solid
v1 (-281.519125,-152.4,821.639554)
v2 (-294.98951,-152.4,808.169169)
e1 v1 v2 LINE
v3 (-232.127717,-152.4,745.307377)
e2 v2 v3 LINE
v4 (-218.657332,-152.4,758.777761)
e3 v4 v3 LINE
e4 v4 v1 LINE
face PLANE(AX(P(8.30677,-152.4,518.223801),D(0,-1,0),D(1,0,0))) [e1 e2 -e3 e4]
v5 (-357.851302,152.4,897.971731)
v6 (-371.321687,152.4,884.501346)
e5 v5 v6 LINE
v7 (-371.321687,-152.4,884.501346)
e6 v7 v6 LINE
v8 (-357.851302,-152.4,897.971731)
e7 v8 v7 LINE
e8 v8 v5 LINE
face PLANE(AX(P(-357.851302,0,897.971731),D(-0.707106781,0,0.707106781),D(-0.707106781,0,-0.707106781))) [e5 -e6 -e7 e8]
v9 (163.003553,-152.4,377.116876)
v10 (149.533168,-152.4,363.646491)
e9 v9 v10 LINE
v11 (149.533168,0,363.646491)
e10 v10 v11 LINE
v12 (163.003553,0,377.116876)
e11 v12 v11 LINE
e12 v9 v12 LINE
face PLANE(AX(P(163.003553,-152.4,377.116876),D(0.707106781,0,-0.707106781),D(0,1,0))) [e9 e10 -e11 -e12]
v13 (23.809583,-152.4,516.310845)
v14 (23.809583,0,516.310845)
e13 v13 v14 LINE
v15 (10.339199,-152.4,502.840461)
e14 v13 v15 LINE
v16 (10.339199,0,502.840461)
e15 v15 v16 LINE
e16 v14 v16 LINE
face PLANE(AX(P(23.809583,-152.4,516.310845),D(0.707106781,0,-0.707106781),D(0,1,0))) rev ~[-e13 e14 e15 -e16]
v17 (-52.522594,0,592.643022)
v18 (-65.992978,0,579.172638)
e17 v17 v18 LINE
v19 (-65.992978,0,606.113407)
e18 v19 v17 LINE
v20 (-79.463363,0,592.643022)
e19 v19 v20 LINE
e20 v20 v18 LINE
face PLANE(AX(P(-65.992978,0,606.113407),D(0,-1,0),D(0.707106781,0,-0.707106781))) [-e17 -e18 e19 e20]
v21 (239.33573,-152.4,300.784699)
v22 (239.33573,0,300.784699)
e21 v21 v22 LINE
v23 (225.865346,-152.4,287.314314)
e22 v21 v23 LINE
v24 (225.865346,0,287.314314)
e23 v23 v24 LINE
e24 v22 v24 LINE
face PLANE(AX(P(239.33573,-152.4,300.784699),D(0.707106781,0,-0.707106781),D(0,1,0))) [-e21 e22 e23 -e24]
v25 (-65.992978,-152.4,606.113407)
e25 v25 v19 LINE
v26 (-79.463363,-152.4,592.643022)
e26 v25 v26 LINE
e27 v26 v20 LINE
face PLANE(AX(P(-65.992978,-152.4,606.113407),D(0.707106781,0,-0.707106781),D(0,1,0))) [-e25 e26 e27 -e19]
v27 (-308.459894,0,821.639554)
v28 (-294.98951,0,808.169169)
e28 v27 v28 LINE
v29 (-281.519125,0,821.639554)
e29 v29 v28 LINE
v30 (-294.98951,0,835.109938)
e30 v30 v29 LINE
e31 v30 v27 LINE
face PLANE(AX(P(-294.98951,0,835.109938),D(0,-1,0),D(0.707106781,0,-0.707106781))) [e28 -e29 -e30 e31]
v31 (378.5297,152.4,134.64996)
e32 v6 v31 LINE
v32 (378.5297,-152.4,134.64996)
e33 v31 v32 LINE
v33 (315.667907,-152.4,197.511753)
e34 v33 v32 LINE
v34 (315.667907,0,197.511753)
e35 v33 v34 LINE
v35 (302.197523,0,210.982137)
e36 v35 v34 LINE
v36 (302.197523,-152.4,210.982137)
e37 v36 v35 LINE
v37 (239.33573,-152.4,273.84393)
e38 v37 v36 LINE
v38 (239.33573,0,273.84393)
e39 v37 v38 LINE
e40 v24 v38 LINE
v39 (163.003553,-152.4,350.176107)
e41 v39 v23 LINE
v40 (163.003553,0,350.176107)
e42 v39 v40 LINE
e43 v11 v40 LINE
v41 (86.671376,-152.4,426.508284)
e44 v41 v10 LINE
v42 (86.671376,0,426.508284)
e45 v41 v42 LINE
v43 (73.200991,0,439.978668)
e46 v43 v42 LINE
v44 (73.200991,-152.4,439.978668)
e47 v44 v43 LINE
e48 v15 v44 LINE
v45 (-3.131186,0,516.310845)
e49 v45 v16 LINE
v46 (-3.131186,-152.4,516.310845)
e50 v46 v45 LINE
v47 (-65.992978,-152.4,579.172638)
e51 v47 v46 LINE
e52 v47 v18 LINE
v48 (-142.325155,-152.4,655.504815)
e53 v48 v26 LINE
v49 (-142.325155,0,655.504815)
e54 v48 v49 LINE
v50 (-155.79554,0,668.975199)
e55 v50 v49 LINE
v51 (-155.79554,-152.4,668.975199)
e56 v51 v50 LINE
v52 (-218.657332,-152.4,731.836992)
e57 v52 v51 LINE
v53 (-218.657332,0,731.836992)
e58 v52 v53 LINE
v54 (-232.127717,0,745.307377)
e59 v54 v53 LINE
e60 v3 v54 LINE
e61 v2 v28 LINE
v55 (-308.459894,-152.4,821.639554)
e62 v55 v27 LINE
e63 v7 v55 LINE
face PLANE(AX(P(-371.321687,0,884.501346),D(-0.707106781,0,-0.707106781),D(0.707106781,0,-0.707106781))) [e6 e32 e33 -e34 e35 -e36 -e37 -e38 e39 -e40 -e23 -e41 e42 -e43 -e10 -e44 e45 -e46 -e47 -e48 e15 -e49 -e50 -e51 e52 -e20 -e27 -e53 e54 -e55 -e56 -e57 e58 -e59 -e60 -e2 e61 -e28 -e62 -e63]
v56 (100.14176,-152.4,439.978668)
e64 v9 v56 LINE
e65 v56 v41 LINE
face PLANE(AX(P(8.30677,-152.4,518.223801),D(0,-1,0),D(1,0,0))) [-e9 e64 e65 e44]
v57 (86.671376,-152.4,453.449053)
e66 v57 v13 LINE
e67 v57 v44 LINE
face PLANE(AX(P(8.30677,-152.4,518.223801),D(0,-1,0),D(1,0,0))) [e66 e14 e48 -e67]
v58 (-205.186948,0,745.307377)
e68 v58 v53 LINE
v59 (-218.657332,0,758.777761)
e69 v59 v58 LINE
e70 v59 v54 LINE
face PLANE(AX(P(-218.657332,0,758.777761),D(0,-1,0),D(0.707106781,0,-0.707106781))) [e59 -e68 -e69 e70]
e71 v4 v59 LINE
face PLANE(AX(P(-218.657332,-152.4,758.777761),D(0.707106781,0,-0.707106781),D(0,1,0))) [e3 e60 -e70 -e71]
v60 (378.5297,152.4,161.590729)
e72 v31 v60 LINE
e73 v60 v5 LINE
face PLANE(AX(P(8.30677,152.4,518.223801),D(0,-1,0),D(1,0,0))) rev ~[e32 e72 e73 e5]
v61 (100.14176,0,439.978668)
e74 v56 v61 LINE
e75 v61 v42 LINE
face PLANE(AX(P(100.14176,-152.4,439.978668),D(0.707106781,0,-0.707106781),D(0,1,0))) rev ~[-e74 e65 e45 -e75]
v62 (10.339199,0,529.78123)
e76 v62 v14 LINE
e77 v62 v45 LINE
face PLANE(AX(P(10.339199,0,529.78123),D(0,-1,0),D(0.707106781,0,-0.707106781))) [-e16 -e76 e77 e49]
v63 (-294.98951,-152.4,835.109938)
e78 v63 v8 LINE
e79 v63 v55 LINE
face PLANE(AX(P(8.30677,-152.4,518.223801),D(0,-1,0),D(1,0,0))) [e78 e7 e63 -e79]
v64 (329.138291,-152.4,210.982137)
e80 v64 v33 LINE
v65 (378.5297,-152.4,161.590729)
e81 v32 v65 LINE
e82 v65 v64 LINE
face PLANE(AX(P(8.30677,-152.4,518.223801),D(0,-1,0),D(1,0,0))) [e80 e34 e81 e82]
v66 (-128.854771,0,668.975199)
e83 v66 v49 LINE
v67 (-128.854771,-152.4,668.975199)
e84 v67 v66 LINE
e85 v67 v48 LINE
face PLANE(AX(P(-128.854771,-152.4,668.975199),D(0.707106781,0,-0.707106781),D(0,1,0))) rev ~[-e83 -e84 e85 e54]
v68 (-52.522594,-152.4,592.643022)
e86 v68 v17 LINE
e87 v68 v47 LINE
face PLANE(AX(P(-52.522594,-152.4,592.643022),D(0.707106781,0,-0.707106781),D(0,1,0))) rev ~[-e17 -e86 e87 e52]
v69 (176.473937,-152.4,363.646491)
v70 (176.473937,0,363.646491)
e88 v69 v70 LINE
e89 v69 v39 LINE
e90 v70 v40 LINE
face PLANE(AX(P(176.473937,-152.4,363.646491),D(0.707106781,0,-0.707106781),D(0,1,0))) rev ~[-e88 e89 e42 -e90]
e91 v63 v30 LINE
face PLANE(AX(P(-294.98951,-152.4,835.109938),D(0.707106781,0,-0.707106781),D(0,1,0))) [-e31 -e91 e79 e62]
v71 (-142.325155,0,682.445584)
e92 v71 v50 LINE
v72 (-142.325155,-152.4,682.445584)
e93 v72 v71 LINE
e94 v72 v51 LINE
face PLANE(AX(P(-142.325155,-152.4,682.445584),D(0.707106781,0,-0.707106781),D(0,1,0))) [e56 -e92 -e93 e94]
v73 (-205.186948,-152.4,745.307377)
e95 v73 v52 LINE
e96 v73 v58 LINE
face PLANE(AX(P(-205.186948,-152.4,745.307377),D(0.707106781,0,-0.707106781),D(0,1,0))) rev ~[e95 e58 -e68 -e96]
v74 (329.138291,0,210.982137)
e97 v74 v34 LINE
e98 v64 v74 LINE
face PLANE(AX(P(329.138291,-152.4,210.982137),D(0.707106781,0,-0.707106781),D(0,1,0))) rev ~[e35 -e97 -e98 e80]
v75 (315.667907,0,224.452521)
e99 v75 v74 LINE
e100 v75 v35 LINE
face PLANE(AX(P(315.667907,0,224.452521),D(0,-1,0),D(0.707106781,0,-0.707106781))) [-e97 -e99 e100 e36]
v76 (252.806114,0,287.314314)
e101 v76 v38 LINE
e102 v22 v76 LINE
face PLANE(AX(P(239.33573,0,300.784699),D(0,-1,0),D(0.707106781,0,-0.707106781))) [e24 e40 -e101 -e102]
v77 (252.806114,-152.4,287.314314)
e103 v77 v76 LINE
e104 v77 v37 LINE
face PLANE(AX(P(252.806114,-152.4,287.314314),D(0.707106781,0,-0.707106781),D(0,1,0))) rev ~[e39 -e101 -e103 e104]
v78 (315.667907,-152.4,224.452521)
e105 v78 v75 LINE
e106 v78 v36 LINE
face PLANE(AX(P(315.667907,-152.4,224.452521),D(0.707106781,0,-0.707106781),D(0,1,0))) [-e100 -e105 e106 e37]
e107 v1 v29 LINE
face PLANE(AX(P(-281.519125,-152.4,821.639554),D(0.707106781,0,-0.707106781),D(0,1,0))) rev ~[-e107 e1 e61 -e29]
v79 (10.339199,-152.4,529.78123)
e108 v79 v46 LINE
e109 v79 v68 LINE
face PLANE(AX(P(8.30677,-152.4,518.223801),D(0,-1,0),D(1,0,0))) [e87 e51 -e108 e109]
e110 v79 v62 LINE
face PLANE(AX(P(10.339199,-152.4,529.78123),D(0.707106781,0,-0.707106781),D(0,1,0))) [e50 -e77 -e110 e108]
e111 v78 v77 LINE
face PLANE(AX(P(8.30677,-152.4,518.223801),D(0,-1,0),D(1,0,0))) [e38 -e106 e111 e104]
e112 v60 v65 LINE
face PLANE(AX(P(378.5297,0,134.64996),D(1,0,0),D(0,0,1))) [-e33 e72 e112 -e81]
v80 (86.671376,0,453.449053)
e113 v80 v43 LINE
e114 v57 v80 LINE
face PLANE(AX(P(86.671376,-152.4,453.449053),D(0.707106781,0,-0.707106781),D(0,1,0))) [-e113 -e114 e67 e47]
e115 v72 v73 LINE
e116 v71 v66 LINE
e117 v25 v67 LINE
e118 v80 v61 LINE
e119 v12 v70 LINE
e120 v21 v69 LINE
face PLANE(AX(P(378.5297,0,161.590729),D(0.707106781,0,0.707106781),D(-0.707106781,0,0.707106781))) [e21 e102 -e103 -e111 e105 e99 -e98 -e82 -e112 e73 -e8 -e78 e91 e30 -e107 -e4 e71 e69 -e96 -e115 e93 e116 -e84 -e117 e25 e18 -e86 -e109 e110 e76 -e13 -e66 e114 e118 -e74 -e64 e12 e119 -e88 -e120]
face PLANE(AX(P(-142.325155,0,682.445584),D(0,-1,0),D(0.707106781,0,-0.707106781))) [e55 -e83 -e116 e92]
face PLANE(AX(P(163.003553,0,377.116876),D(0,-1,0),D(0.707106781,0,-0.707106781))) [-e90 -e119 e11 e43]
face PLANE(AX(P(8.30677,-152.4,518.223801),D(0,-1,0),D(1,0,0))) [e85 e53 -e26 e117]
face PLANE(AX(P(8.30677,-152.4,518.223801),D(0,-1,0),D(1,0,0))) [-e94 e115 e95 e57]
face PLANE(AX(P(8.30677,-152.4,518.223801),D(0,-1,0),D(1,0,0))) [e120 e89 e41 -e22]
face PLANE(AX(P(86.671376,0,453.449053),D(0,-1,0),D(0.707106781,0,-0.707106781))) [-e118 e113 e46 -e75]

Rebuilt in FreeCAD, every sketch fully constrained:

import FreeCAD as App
import Part
import Sketcher
Q = App.Units.Quantity


def add_polygon(sketch, points):
    """Adds a closed chain of lines whose ends are joined by coincident constraints."""
    first, n = sketch.GeometryCount, len(points)
    for a, b in zip(points, points[1:] + points[:1]):
        sketch.addGeometry(Part.LineSegment(App.Vector(*a, 0), App.Vector(*b, 0)), False)
    for i in range(n):
        sketch.addConstraint(Sketcher.Constraint("Coincident", first + i, 2, first + (i + 1) % n, 1))

doc = App.newDocument("Part")
body = doc.addObject("PartDesign::Body", "Body")

# Sketch on XZ plane
sketch1 = doc.addObject("Sketcher::SketchObject", "Sketch")
body.addObject(sketch1)
sketch1.AttachmentSupport = (doc.XZ_Plane, [""])
sketch1.MapMode = "FlatFace"
add_polygon(sketch1, [(-371, 885), (379, 135), (379, 162), (-358, 898)])  # lines 0-3
sketch1.addConstraint([
    Sketcher.Constraint("Vertical", 1),
    Sketcher.Constraint("Parallel", 0, 2),
    Sketcher.Constraint("Perpendicular", 2, 3),
    Sketcher.Constraint("Distance", 2, Q("41 in")),
    Sketcher.Constraint("Angle", 0, Q("-45 deg")),
    Sketcher.Constraint("Distance", 0, Q("41.75 in")),
    Sketcher.Constraint("DistanceX", -1, 1, 0, 2, 378.5297),
    Sketcher.Constraint("DistanceY", -1, 1, 0, 2, 134.64996),
])
pad1 = doc.addObject("PartDesign::Pad", "Pad")
body.addObject(pad1)
pad1.Profile = sketch1
pad1.Length = Q("12 in")
pad1.Midplane = True

# Sketch on an angled plane
sketch2 = doc.addObject("Sketcher::SketchObject", "Sketch001")
body.addObject(sketch2)
sketch2.Placement = App.Placement(App.Vector(270.060214, 0, 270.060214), App.Rotation(App.Vector(0.707106781, 0, -0.707106781), App.Vector(0, 0.999999999, 0), App.Vector(0.707106781, 0, 0.707106781), "ZXY"))
add_polygon(sketch2, [(64, 0), (64, -152), (84, -152), (84, 0)])  # lines 0-3
add_polygon(sketch2, [(-43, 0), (-43, -152), (-24, -152), (-24, 0)])  # lines 4-7
add_polygon(sketch2, [(-151, 0), (-151, -152), (-132, -152), (-132, 0)])  # lines 8-11
add_polygon(sketch2, [(-259, 0), (-259, -152), (-240, -152), (-240, 0)])  # lines 12-15
add_polygon(sketch2, [(-367, 0), (-367, -152), (-348, -152), (-348, 0)])  # lines 16-19
add_polygon(sketch2, [(-475, 0), (-475, -152), (-456, -152), (-456, 0)])  # lines 20-23
add_polygon(sketch2, [(-583, 0), (-583, -152), (-564, -152), (-564, 0)])  # lines 24-27
add_polygon(sketch2, [(-691, 0), (-691, -152), (-672, -152), (-672, 0)])  # lines 28-31
add_polygon(sketch2, [(-799, 0), (-799, -152), (-780, -152), (-780, 0)])  # lines 32-35
sketch2.addConstraint([
    Sketcher.Constraint("Vertical", 0),
    Sketcher.Constraint("Horizontal", 1),
    Sketcher.Constraint("Vertical", 2),
    Sketcher.Constraint("Horizontal", 3),
    Sketcher.Constraint("Vertical", 4),
    Sketcher.Constraint("Horizontal", 5),
    Sketcher.Constraint("Vertical", 6),
    Sketcher.Constraint("Horizontal", 7),
    Sketcher.Constraint("Vertical", 8),
    Sketcher.Constraint("Horizontal", 9),
    Sketcher.Constraint("Vertical", 10),
    Sketcher.Constraint("Horizontal", 11),
    Sketcher.Constraint("Vertical", 12),
    Sketcher.Constraint("Horizontal", 13),
    Sketcher.Constraint("Vertical", 14),
    Sketcher.Constraint("Horizontal", 15),
    Sketcher.Constraint("Vertical", 16),
    Sketcher.Constraint("Horizontal", 17),
    Sketcher.Constraint("Vertical", 18),
    Sketcher.Constraint("Horizontal", 19),
    Sketcher.Constraint("Vertical", 20),
    Sketcher.Constraint("Horizontal", 21),
    Sketcher.Constraint("Vertical", 22),
    Sketcher.Constraint("Horizontal", 23),
    Sketcher.Constraint("Vertical", 24),
    Sketcher.Constraint("Horizontal", 25),
    Sketcher.Constraint("Vertical", 26),
    Sketcher.Constraint("Horizontal", 27),
    Sketcher.Constraint("Vertical", 28),
    Sketcher.Constraint("Horizontal", 29),
    Sketcher.Constraint("Vertical", 30),
    Sketcher.Constraint("Horizontal", 31),
    Sketcher.Constraint("Vertical", 32),
    Sketcher.Constraint("Horizontal", 33),
    Sketcher.Constraint("Vertical", 34),
    Sketcher.Constraint("Horizontal", 35),
    Sketcher.Constraint("PointOnObject", 2, 2, -1),
    Sketcher.Constraint("PointOnObject", 6, 2, -1),
    Sketcher.Constraint("PointOnObject", 10, 2, -1),
    Sketcher.Constraint("PointOnObject", 14, 2, -1),
    Sketcher.Constraint("PointOnObject", 18, 2, -1),
    Sketcher.Constraint("PointOnObject", 22, 2, -1),
    Sketcher.Constraint("PointOnObject", 26, 2, -1),
    Sketcher.Constraint("PointOnObject", 30, 2, -1),
    Sketcher.Constraint("PointOnObject", 34, 2, -1),
    Sketcher.Constraint("Horizontal", 1, 2, 4, 2),
    Sketcher.Constraint("Horizontal", 5, 2, 8, 2),
    Sketcher.Constraint("Horizontal", 9, 2, 12, 2),
    Sketcher.Constraint("Horizontal", 13, 2, 16, 2),
    Sketcher.Constraint("Horizontal", 17, 2, 20, 2),
    Sketcher.Constraint("Horizontal", 21, 2, 24, 2),
    Sketcher.Constraint("Horizontal", 25, 2, 28, 2),
    Sketcher.Constraint("Horizontal", 29, 2, 32, 2),
    Sketcher.Constraint("Equal", 3, 5),
    Sketcher.Constraint("Equal", 7, 9),
    Sketcher.Constraint("Equal", 11, 13),
    Sketcher.Constraint("Equal", 15, 17),
    Sketcher.Constraint("Equal", 19, 21),
    Sketcher.Constraint("Equal", 23, 25),
    Sketcher.Constraint("Equal", 27, 29),
    Sketcher.Constraint("Equal", 31, 33),
    Sketcher.Constraint("DistanceY", 0, 2, 0, 1, Q("6 in")),
    Sketcher.Constraint("DistanceX", 4, 2, 1, 2, Q("5 in")),
    Sketcher.Constraint("DistanceX", 8, 2, 5, 2, Q("5 in")),
    Sketcher.Constraint("DistanceX", 12, 2, 9, 2, Q("5 in")),
    Sketcher.Constraint("DistanceX", 16, 2, 13, 2, Q("5 in")),
    Sketcher.Constraint("DistanceX", 20, 2, 17, 2, Q("5 in")),
    Sketcher.Constraint("DistanceX", 24, 2, 21, 2, Q("5 in")),
    Sketcher.Constraint("DistanceX", 28, 2, 25, 2, Q("5 in")),
    Sketcher.Constraint("DistanceX", 32, 2, 29, 2, Q("5 in")),
    Sketcher.Constraint("DistanceX", 1, 1, 1, 2, Q("0.75 in")),
    Sketcher.Constraint("DistanceX", -1, 1, 0, 2, 64.499017),
])
pocket1 = doc.addObject("PartDesign::Pocket", "Pocket")
body.addObject(pocket1)
pocket1.Profile = sketch2
pocket1.Length = Q("0.75 in")

doc.recompute()
